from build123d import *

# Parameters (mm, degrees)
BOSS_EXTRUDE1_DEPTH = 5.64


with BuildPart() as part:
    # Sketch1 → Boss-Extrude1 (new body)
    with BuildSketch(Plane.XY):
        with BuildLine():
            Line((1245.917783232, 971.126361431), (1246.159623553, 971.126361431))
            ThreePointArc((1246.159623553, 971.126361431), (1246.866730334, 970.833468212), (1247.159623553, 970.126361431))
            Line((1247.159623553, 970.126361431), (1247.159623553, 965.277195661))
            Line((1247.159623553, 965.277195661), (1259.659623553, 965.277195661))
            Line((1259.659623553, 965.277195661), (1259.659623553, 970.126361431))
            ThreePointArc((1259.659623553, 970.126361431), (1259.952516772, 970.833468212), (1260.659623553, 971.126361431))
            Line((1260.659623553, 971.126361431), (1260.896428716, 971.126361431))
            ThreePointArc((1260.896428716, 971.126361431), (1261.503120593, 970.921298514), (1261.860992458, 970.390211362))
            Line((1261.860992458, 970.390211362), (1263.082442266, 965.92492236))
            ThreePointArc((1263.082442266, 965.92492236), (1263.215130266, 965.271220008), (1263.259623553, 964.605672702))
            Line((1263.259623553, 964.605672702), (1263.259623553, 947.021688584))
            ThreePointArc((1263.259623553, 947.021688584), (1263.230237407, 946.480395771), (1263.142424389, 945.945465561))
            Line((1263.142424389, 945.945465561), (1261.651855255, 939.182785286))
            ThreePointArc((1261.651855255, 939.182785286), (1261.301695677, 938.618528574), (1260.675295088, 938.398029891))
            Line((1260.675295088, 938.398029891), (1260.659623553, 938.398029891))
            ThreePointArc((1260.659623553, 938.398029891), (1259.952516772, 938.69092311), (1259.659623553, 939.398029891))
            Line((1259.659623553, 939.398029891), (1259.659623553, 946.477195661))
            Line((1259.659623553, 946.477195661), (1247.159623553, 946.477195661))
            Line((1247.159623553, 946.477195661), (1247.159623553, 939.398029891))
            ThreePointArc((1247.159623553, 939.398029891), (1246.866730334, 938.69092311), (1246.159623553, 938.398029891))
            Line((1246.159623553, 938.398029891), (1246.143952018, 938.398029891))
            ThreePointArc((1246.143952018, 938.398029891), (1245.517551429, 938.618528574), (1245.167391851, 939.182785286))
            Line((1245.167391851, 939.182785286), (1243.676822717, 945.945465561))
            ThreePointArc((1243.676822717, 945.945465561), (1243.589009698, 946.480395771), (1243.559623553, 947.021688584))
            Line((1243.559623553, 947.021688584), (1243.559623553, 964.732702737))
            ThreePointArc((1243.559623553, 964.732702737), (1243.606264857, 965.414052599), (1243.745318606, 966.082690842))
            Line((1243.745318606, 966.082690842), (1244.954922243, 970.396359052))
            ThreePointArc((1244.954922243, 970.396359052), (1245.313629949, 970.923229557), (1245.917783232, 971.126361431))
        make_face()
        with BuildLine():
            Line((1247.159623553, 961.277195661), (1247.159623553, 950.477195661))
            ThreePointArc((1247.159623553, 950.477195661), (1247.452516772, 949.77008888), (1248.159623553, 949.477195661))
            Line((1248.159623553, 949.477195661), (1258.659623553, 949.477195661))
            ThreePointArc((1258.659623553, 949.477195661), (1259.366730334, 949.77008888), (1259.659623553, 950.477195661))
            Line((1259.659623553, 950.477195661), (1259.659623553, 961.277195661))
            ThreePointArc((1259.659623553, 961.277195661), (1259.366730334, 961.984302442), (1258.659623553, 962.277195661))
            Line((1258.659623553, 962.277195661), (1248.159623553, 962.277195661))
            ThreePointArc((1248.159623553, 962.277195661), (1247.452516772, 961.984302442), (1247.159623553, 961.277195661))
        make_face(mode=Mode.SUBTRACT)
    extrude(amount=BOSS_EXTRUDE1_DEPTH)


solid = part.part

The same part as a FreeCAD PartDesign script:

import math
import FreeCAD as App
import Part
import Sketcher

V = App.Vector
Q = App.Units.Quantity

doc = App.newDocument("Part")
params = doc.addObject("Spreadsheet::Sheet", "Params")
for row, (alias, value) in enumerate([
    ("sketch1_radius", "1 mm"),
    ("sketch1_radius2", "5 mm"),
    ("sketch1_width", "12.5 mm"),
    ("sketch1_height", "10.8 mm"),
    ("pad1_length", "5.64 mm"),
], start=1):
    params.set(f"A{row}", alias)
    params.set(f"B{row}", "=" + value)
    params.setAlias(f"B{row}", alias)

body = doc.addObject("PartDesign::Body", "Body")

sketch1 = body.newObject("Sketcher::SketchObject", "Sketch")
sketch1.AttachmentSupport = (doc.getObject("XY_Plane"), [""])
sketch1.MapMode = "FlatFace"
sketch1.addGeometry([
    Part.LineSegment(V(1246.16, 971.126, 0), V(1245.918, 971.126, 0)),
    Part.ArcOfCircle(Part.Circle(V(1245.918, 970.126, 0), V(0, 0, 1), 1), math.radians(90), math.radians(164)),
    Part.LineSegment(V(1244.955, 970.396, 0), V(1243.745, 966.083, 0)),
    Part.ArcOfCircle(Part.Circle(V(1248.56, 964.733, 0), V(0, 0, 1), 5), math.radians(164.34), math.radians(180)),
    Part.LineSegment(V(1243.56, 964.733, 0), V(1243.56, 947.022, 0)),
    Part.ArcOfCircle(Part.Circle(V(1248.56, 947.022, 0), V(0, 0, 1), 5), math.radians(180), math.radians(192.43)),
    Part.LineSegment(V(1243.677, 945.945, 0), V(1245.167, 939.183, 0)),
    Part.ArcOfCircle(Part.Circle(V(1246.144, 939.398, 0), V(0, 0, 1), 1), math.radians(-168), math.radians(-90)),
    Part.LineSegment(V(1246.144, 938.398, 0), V(1246.16, 938.398, 0)),
    Part.ArcOfCircle(Part.Circle(V(1246.16, 939.398, 0), V(0, 0, 1), 1), math.radians(-90), math.radians(0)),
    Part.LineSegment(V(1247.16, 939.398, 0), V(1247.16, 946.477, 0)),
    Part.LineSegment(V(1247.16, 946.477, 0), V(1259.66, 946.477, 0)),
    Part.LineSegment(V(1259.66, 946.477, 0), V(1259.66, 939.398, 0)),
    Part.ArcOfCircle(Part.Circle(V(1260.66, 939.398, 0), V(0, 0, 1), 1), math.radians(-180), math.radians(-90)),
    Part.LineSegment(V(1260.66, 938.398, 0), V(1260.675, 938.398, 0)),
    Part.ArcOfCircle(Part.Circle(V(1260.675, 939.398, 0), V(0, 0, 1), 1), math.radians(-90), math.radians(-12)),
    Part.LineSegment(V(1261.652, 939.183, 0), V(1263.142, 945.945, 0)),
    Part.ArcOfCircle(Part.Circle(V(1258.26, 947.022, 0), V(0, 0, 1), 5), math.radians(-12.43), math.radians(0)),
    Part.LineSegment(V(1263.26, 947.022, 0), V(1263.26, 964.606, 0)),
    Part.ArcOfCircle(Part.Circle(V(1258.26, 964.606, 0), V(0, 0, 1), 5), math.radians(0), math.radians(15.3)),
    Part.LineSegment(V(1263.082, 965.925, 0), V(1261.861, 970.39, 0)),
    Part.ArcOfCircle(Part.Circle(V(1260.896, 970.126, 0), V(0, 0, 1), 1), math.radians(15), math.radians(90)),
    Part.LineSegment(V(1260.896, 971.126, 0), V(1260.66, 971.126, 0)),
    Part.ArcOfCircle(Part.Circle(V(1260.66, 970.126, 0), V(0, 0, 1), 1), math.radians(90), math.radians(180)),
    Part.LineSegment(V(1259.66, 970.126, 0), V(1259.66, 965.277, 0)),
    Part.LineSegment(V(1259.66, 965.277, 0), V(1247.16, 965.277, 0)),
    Part.LineSegment(V(1247.16, 965.277, 0), V(1247.16, 970.126, 0)),
    Part.ArcOfCircle(Part.Circle(V(1246.16, 970.126, 0), V(0, 0, 1), 1), math.radians(0), math.radians(90)),
    Part.ArcOfCircle(Part.Circle(V(1248.16, 961.277, 0), V(0, 0, 1), 1), math.radians(90), math.radians(180)),
    Part.LineSegment(V(1248.16, 962.277, 0), V(1258.66, 962.277, 0)),
    Part.ArcOfCircle(Part.Circle(V(1258.66, 961.277, 0), V(0, 0, 1), 1), math.radians(0), math.radians(90)),
    Part.LineSegment(V(1259.66, 961.277, 0), V(1259.66, 950.477, 0)),
    Part.ArcOfCircle(Part.Circle(V(1258.66, 950.477, 0), V(0, 0, 1), 1), math.radians(-90), math.radians(0)),
    Part.LineSegment(V(1258.66, 949.477, 0), V(1248.16, 949.477, 0)),
    Part.ArcOfCircle(Part.Circle(V(1248.16, 950.477, 0), V(0, 0, 1), 1), math.radians(-180), math.radians(-90)),
    Part.LineSegment(V(1247.16, 950.477, 0), V(1247.16, 961.277, 0)),
], False)
sketch1.addConstraint([
    Sketcher.Constraint("Tangent", 0, 2, 1, 1),
    Sketcher.Constraint("Tangent", 1, 2, 2, 1),
    Sketcher.Constraint("Tangent", 2, 2, 3, 1),
    Sketcher.Constraint("Tangent", 3, 2, 4, 1),
    Sketcher.Constraint("Tangent", 4, 2, 5, 1),
    Sketcher.Constraint("Tangent", 5, 2, 6, 1),
    Sketcher.Constraint("Tangent", 6, 2, 7, 1),
    Sketcher.Constraint("Tangent", 7, 2, 8, 1),
    Sketcher.Constraint("Tangent", 8, 2, 9, 1),
    Sketcher.Constraint("Tangent", 9, 2, 10, 1),
    Sketcher.Constraint("Coincident", 10, 2, 11, 1),
    Sketcher.Constraint("Coincident", 11, 2, 12, 1),
    Sketcher.Constraint("Tangent", 12, 2, 13, 1),
    Sketcher.Constraint("Tangent", 13, 2, 14, 1),
    Sketcher.Constraint("Tangent", 14, 2, 15, 1),
    Sketcher.Constraint("Tangent", 15, 2, 16, 1),
    Sketcher.Constraint("Tangent", 16, 2, 17, 1),
    Sketcher.Constraint("Tangent", 17, 2, 18, 1),
    Sketcher.Constraint("Tangent", 18, 2, 19, 1),
    Sketcher.Constraint("Tangent", 19, 2, 20, 1),
    Sketcher.Constraint("Tangent", 20, 2, 21, 1),
    Sketcher.Constraint("Tangent", 21, 2, 22, 1),
    Sketcher.Constraint("Tangent", 22, 2, 23, 1),
    Sketcher.Constraint("Tangent", 23, 2, 24, 1),
    Sketcher.Constraint("Coincident", 24, 2, 25, 1),
    Sketcher.Constraint("Coincident", 25, 2, 26, 1),
    Sketcher.Constraint("Tangent", 26, 2, 27, 1),
    Sketcher.Constraint("Tangent", 27, 2, 0, 1),
    Sketcher.Constraint("Tangent", 28, 1, 29, 1),
    Sketcher.Constraint("Tangent", 29, 2, 30, 2),
    Sketcher.Constraint("Tangent", 30, 1, 31, 1),
    Sketcher.Constraint("Tangent", 31, 2, 32, 2),
    Sketcher.Constraint("Tangent", 32, 1, 33, 1),
    Sketcher.Constraint("Tangent", 33, 2, 34, 2),
    Sketcher.Constraint("Tangent", 34, 1, 35, 1),
    Sketcher.Constraint("Tangent", 35, 2, 28, 2),
    Sketcher.Constraint("Horizontal", 0),
    Sketcher.Constraint("Vertical", 4),
    Sketcher.Constraint("Horizontal", 8),
    Sketcher.Constraint("Vertical", 10),
    Sketcher.Constraint("Horizontal", 11),
    Sketcher.Constraint("Vertical", 12),
    Sketcher.Constraint("Horizontal", 14),
    Sketcher.Constraint("Vertical", 18),
    Sketcher.Constraint("Horizontal", 22),
    Sketcher.Constraint("Vertical", 24),
    Sketcher.Constraint("Horizontal", 25),
    Sketcher.Constraint("Vertical", 26),
    Sketcher.Constraint("Horizontal", 29),
    Sketcher.Constraint("Vertical", 31),
    Sketcher.Constraint("Horizontal", 33),
    Sketcher.Constraint("Vertical", 35),
    Sketcher.Constraint("Equal", 3, 5),
    Sketcher.Constraint("Equal", 1, 7),
    Sketcher.Constraint("Equal", 7, 9),
    Sketcher.Constraint("Equal", 9, 13),
    Sketcher.Constraint("Equal", 13, 15),
    Sketcher.Constraint("Equal", 5, 17),
    Sketcher.Constraint("Equal", 17, 19),
    Sketcher.Constraint("Equal", 15, 21),
    Sketcher.Constraint("Equal", 21, 23),
    Sketcher.Constraint("Equal", 23, 27),
    Sketcher.Constraint("Equal", 27, 28),
    Sketcher.Constraint("Equal", 28, 30),
    Sketcher.Constraint("Equal", 30, 32),
    Sketcher.Constraint("Equal", 32, 34),
    Sketcher.Constraint("Horizontal", 9, 3, 13, 3),
    Sketcher.Constraint("Horizontal", 5, 3, 17, 3),
    Sketcher.Constraint("Horizontal", 1, 3, 21, 3),
    Sketcher.Constraint("Horizontal", 6, 2, 15, 2),
    Sketcher.Constraint("Vertical", 13, 3, 23, 3),
    Sketcher.Constraint("Vertical", 9, 3, 27, 3),
    Sketcher.Constraint("Vertical", 24, 2, 30, 1),
    Sketcher.Constraint("Vertical", 26, 2, 34, 1),
    Sketcher.Constraint("Equal", 8, 14),
    Sketcher.Constraint("Radius", 1, Q("1 mm")),
    Sketcher.Constraint("Radius", 3, Q("5 mm")),
    Sketcher.Constraint("DistanceX", 11, 1, 11, 2, Q("12.5 mm")),
    Sketcher.Constraint("DistanceY", 31, 2, 31, 1, Q("10.8 mm")),
    Sketcher.Constraint("DistanceY", 10, 2, 34, 3, Q("4 mm")),
    Sketcher.Constraint("DistanceY", 30, 3, 24, 2, Q("4 mm")),
    Sketcher.Constraint("DistanceX", 9, 3, 5, 3, Q("2.4 mm")),
    Sketcher.Constraint("Distance", 6, Q("6.925001 mm")),
    Sketcher.Constraint("DistanceX", 0, 2, 0, 1, Q("0.24184 mm")),
    Sketcher.Constraint("DistanceX", 8, 1, 8, 2, Q("0.015672 mm")),
    Sketcher.Constraint("DistanceX", 1, 2, 27, 3, Q("1.204701 mm")),
    Sketcher.Constraint("DistanceX", 22, 2, 22, 1, Q("0.236805 mm")),
    Sketcher.Constraint("DistanceY", 4, 2, 4, 1, Q("17.711014 mm")),
    Sketcher.Constraint("DistanceY", 10, 1, 10, 2, Q("7.079166 mm")),
    Sketcher.Constraint("DistanceY", 18, 1, 18, 2, Q("17.583984 mm")),
    Sketcher.Constraint("DistanceY", -1, 1, 1, 3, Q("970.126361 mm")),
    Sketcher.Constraint("DistanceX", -1, 1, 21, 3, Q("1260.896429 mm")),
])
sketch1.setExpression("Constraints[75]", "Params.sketch1_radius")
sketch1.setExpression("Constraints[76]", "Params.sketch1_radius2")
sketch1.setExpression("Constraints[77]", "Params.sketch1_width")
sketch1.setExpression("Constraints[78]", "Params.sketch1_height")
pad1 = body.newObject("PartDesign::Pad", "Pad")
pad1.Profile = sketch1
pad1.setExpression("Length", "Params.pad1_length")

doc.recompute()
